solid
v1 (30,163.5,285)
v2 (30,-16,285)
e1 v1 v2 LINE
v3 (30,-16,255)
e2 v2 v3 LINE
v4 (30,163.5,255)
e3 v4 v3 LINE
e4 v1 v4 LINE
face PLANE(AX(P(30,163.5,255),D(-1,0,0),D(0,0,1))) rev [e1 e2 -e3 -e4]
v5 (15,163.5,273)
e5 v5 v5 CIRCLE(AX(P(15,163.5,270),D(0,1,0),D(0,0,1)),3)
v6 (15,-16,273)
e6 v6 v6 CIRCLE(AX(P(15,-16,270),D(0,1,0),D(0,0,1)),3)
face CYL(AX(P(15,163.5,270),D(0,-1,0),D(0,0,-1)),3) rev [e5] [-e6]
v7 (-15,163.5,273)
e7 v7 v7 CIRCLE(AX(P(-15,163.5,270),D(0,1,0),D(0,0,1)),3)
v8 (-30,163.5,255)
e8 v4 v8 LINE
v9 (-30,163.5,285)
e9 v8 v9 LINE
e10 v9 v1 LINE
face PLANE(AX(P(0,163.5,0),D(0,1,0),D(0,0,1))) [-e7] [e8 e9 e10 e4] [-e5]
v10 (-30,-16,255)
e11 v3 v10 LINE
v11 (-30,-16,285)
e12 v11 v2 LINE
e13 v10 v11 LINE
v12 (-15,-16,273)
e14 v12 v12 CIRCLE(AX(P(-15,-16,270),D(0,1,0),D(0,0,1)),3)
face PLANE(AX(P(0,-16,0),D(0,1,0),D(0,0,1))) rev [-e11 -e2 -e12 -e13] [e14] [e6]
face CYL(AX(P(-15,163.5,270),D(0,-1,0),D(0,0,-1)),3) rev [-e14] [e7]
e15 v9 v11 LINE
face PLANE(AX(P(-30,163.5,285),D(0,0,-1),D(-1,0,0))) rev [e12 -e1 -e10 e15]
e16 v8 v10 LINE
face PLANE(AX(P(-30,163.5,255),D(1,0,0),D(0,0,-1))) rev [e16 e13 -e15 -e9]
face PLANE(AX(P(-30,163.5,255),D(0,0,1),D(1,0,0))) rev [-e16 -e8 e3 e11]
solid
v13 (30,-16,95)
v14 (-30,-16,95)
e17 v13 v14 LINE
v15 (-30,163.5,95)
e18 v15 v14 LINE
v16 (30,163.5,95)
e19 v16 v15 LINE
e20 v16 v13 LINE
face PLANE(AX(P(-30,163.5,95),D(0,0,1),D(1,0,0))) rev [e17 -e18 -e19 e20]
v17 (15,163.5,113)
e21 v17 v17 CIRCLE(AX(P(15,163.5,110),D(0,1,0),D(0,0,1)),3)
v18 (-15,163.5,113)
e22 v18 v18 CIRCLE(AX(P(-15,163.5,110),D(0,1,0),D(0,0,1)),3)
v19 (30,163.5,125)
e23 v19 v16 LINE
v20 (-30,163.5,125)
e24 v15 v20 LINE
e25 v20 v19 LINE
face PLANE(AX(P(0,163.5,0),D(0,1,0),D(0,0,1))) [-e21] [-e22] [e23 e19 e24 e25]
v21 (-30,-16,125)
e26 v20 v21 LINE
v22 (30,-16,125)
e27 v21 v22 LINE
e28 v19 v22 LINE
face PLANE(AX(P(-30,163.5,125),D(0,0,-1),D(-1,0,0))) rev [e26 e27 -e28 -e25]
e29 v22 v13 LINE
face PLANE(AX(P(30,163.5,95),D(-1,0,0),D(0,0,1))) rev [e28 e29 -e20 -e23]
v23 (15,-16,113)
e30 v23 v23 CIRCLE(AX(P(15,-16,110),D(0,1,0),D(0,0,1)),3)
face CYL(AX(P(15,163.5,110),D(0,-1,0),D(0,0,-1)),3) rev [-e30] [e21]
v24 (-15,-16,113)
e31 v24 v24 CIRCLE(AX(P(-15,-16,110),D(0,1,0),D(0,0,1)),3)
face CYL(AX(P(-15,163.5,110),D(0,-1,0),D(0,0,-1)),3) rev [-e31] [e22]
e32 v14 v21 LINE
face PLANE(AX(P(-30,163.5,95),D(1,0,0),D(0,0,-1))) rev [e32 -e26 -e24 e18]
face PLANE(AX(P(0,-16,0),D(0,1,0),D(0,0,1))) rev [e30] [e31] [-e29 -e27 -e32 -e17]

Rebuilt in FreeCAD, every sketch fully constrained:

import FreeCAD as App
import Part
import Sketcher
from FreeCAD import Vector


def add_polygon(sketch, points):
    """Adds a closed chain of lines whose ends are joined by coincident constraints."""
    first, n = sketch.GeometryCount, len(points)
    for a, b in zip(points, points[1:] + points[:1]):
        sketch.addGeometry(Part.LineSegment(App.Vector(*a, 0), App.Vector(*b, 0)), False)
    for i in range(n):
        sketch.addConstraint(Sketcher.Constraint("Coincident", first + i, 2, first + (i + 1) % n, 1))

doc = App.newDocument("Part")
body = doc.addObject("PartDesign::Body", "Body")

# Sketch on XZ plane
sketch1 = body.newObject("Sketcher::SketchObject", "Sketch")
sketch1.AttachmentSupport = (doc.getObject("XZ_Plane"), [""])
sketch1.MapMode = "FlatFace"
add_polygon(sketch1, [(-30, 95), (-30, 125), (30, 125), (30, 95)])  # lines 0-3
sketch1.addGeometry(Part.Circle(Vector(-15, 110, 0), Vector(0, 0, 1), 3), False)  # 4
sketch1.addGeometry(Part.Circle(Vector(15, 110, 0), Vector(0, 0, 1), 3), False)  # 5
sketch1.addConstraint([
    Sketcher.Constraint("Vertical", 0),
    Sketcher.Constraint("Horizontal", 1),
    Sketcher.Constraint("Vertical", 2),
    Sketcher.Constraint("Horizontal", 3),
    Sketcher.Constraint("Equal", 4, 5),
    Sketcher.Constraint("Symmetric", 4, 3, 5, 3, -2),
    Sketcher.Constraint("Diameter", 4, 6.0),
    Sketcher.Constraint("DistanceX", 1, 1, 1, 2, 60.0),
    Sketcher.Constraint("DistanceY", 0, 1, 0, 2, 30.0),
    Sketcher.Constraint("DistanceX", 4, 3, -1, 1, 15.0),
    Sketcher.Constraint("DistanceY", -1, 1, 4, 3, 110.0),
    Sketcher.Constraint("DistanceX", 0, 2, -1, 1, 30.0),
    Sketcher.Constraint("DistanceY", -1, 1, 0, 2, 125.0),
])
pad1 = body.newObject("PartDesign::Pad", "Pad")
pad1.Profile = sketch1
pad1.Type = "TwoLengths"
pad1.Length = 163.5
pad1.Length2 = 16
pad1.Reversed = True
body2 = doc.addObject("PartDesign::Body", "Body001")

# Sketch on XZ plane
sketch2 = body2.newObject("Sketcher::SketchObject", "Sketch001")
sketch2.AttachmentSupport = (doc.getObject("XZ_Plane001"), [""])
sketch2.MapMode = "FlatFace"
add_polygon(sketch2, [(-30, 255), (-30, 285), (30, 285), (30, 255)])  # lines 0-3
sketch2.addGeometry(Part.Circle(Vector(-15, 270, 0), Vector(0, 0, 1), 3), False)  # 4
sketch2.addGeometry(Part.Circle(Vector(15, 270, 0), Vector(0, 0, 1), 3), False)  # 5
sketch2.addConstraint([
    Sketcher.Constraint("Vertical", 0),
    Sketcher.Constraint("Horizontal", 1),
    Sketcher.Constraint("Vertical", 2),
    Sketcher.Constraint("Horizontal", 3),
    Sketcher.Constraint("Equal", 4, 5),
    Sketcher.Constraint("Symmetric", 4, 3, 5, 3, -2),
    Sketcher.Constraint("Diameter", 4, 6.0),
    Sketcher.Constraint("DistanceX", 1, 1, 1, 2, 60.0),
    Sketcher.Constraint("DistanceY", 0, 1, 0, 2, 30.0),
    Sketcher.Constraint("DistanceX", 4, 3, -1, 1, 15.0),
    Sketcher.Constraint("DistanceY", -1, 1, 4, 3, 270.0),
    Sketcher.Constraint("DistanceX", 0, 2, -1, 1, 30.0),
    Sketcher.Constraint("DistanceY", -1, 1, 0, 2, 285.0),
])
pad2 = body2.newObject("PartDesign::Pad", "Pad001")
pad2.Profile = sketch2
pad2.Type = "TwoLengths"
pad2.Length = 163.5
pad2.Length2 = 16
pad2.Reversed = True

doc.recompute()
